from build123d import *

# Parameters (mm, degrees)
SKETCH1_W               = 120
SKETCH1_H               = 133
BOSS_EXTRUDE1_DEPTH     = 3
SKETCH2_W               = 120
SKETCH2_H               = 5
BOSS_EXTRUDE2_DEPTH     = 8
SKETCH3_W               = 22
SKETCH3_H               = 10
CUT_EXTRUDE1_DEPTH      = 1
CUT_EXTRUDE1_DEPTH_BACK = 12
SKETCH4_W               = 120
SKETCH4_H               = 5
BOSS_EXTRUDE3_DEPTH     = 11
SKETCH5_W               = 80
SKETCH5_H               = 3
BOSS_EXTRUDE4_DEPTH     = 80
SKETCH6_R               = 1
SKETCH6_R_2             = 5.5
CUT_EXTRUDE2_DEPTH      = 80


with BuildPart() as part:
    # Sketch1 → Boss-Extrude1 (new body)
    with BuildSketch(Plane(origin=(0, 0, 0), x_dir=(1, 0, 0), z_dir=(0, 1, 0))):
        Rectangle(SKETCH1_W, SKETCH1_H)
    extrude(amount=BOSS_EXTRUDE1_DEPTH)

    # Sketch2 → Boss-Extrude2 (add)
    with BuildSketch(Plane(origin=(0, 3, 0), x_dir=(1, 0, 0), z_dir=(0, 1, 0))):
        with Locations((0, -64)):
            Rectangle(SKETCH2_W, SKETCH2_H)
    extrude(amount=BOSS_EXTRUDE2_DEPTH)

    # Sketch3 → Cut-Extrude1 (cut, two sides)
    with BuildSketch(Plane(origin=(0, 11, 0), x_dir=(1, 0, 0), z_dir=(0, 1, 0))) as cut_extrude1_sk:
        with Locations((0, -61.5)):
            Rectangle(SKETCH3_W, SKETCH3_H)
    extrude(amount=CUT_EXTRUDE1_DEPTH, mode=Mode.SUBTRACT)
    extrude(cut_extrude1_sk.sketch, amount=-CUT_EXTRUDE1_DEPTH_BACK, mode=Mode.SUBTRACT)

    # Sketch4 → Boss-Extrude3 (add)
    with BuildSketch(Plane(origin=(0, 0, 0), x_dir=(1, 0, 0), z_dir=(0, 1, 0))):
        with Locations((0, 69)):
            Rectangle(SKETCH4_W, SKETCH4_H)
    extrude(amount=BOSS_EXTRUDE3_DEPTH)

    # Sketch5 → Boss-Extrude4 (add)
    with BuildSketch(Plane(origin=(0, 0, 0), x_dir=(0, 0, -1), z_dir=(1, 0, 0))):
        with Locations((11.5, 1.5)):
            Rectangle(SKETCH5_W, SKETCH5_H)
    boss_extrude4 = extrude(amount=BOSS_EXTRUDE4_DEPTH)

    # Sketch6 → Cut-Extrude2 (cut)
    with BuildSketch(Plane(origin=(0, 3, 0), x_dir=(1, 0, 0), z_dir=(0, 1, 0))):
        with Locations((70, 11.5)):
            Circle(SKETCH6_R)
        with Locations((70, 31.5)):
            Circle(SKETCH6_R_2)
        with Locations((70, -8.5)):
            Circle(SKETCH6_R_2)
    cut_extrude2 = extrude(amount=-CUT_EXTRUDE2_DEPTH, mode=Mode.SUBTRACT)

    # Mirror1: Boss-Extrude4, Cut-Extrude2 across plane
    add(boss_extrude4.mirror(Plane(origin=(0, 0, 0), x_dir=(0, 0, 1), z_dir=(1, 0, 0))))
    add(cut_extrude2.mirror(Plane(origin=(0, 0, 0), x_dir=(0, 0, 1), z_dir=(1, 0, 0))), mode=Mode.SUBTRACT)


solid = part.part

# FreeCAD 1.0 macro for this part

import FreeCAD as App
import Part
import Sketcher
Q = App.Units.Quantity


def add_polygon(sketch, points):
    """Adds a closed chain of lines whose ends are joined by coincident constraints."""
    first, n = sketch.GeometryCount, len(points)
    for a, b in zip(points, points[1:] + points[:1]):
        sketch.addGeometry(Part.LineSegment(App.Vector(*a, 0), App.Vector(*b, 0)), False)
    for i in range(n):
        sketch.addConstraint(Sketcher.Constraint("Coincident", first + i, 2, first + (i + 1) % n, 1))

doc = App.newDocument("Part")
body = doc.addObject("PartDesign::Body", "Body")

sketch1 = body.newObject("Sketcher::SketchObject", "Sketch")
sketch1.AttachmentSupport = (doc.getObject("XZ_Plane"), [""])
sketch1.MapMode = "FlatFace"
add_polygon(sketch1, [(-60, -66.5), (-60, 66.5), (60, 66.5), (60, -66.5)])
sketch1.addConstraint([
    Sketcher.Constraint("Vertical", 0),
    Sketcher.Constraint("Horizontal", 1),
    Sketcher.Constraint("Vertical", 2),
    Sketcher.Constraint("Horizontal", 3),
    Sketcher.Constraint("Symmetric", 0, 2, 2, 2, -1, 1),
    Sketcher.Constraint("DistanceX", 1, 1, 1, 2, Q("120 mm")),
    Sketcher.Constraint("DistanceY", 0, 1, 0, 2, Q("133 mm")),
])
pad1 = body.newObject("PartDesign::Pad", "Pad")
pad1.Profile = sketch1
pad1.Length = 3
pad1.Reversed = True

sketch2 = body.newObject("Sketcher::SketchObject", "Sketch001")
sketch2.AttachmentSupport = (doc.getObject("XZ_Plane"), [""])
sketch2.MapMode = "FlatFace"
sketch2.AttachmentOffset = App.Placement(App.Vector(0, 0, -3), App.Rotation())
add_polygon(sketch2, [(-60, 61.5), (-60, 66.5), (60, 66.5), (60, 61.5)])
sketch2.addConstraint([
    Sketcher.Constraint("Vertical", 0),
    Sketcher.Constraint("Horizontal", 1),
    Sketcher.Constraint("Vertical", 2),
    Sketcher.Constraint("Horizontal", 3),
    Sketcher.Constraint("DistanceX", 1, 1, 1, 2, Q("120 mm")),
    Sketcher.Constraint("DistanceY", 0, 1, 0, 2, Q("5 mm")),
    Sketcher.Constraint("DistanceX", 0, 2, -1, 1, Q("60 mm")),
    Sketcher.Constraint("DistanceY", -1, 1, 0, 2, Q("66.5 mm")),
])
pad2 = body.newObject("PartDesign::Pad", "Pad001")
pad2.Profile = sketch2
pad2.Length = 8
pad2.Reversed = True

sketch3 = body.newObject("Sketcher::SketchObject", "Sketch002")
sketch3.AttachmentSupport = (doc.getObject("XZ_Plane"), [""])
sketch3.MapMode = "FlatFace"
sketch3.AttachmentOffset = App.Placement(App.Vector(0, 0, -11), App.Rotation())
add_polygon(sketch3, [(-11, 56.5), (-11, 66.5), (11, 66.5), (11, 56.5)])
sketch3.addConstraint([
    Sketcher.Constraint("Vertical", 0),
    Sketcher.Constraint("Horizontal", 1),
    Sketcher.Constraint("Vertical", 2),
    Sketcher.Constraint("Horizontal", 3),
    Sketcher.Constraint("DistanceX", 1, 1, 1, 2, Q("22 mm")),
    Sketcher.Constraint("DistanceY", 0, 1, 0, 2, Q("10 mm")),
    Sketcher.Constraint("DistanceX", 0, 2, -1, 1, Q("11 mm")),
    Sketcher.Constraint("DistanceY", -1, 1, 0, 2, Q("66.5 mm")),
])
pocket1 = body.newObject("PartDesign::Pocket", "Pocket")
pocket1.Profile = sketch3
pocket1.Type = "ThroughAll"
pocket1.Midplane = True

sketch4 = body.newObject("Sketcher::SketchObject", "Sketch003")
sketch4.AttachmentSupport = (doc.getObject("XZ_Plane"), [""])
sketch4.MapMode = "FlatFace"
add_polygon(sketch4, [(-60, -71.5), (-60, -66.5), (60, -66.5), (60, -71.5)])
sketch4.addConstraint([
    Sketcher.Constraint("Vertical", 0),
    Sketcher.Constraint("Horizontal", 1),
    Sketcher.Constraint("Vertical", 2),
    Sketcher.Constraint("Horizontal", 3),
    Sketcher.Constraint("DistanceX", 1, 1, 1, 2, Q("120 mm")),
    Sketcher.Constraint("DistanceY", 0, 1, 0, 2, Q("5 mm")),
    Sketcher.Constraint("DistanceX", 0, 2, -1, 1, Q("60 mm")),
    Sketcher.Constraint("DistanceY", 0, 2, -1, 1, Q("66.5 mm")),
])
pad3 = body.newObject("PartDesign::Pad", "Pad002")
pad3.Profile = sketch4
pad3.Length = 11
pad3.Reversed = True

sketch5 = body.newObject("Sketcher::SketchObject", "Sketch004")
sketch5.AttachmentSupport = (doc.getObject("YZ_Plane"), [""])
sketch5.MapMode = "FlatFace"
add_polygon(sketch5, [(3, 28.5), (0, 28.5), (0, -51.5), (3, -51.5)])
sketch5.addConstraint([
    Sketcher.Constraint("Horizontal", 0),
    Sketcher.Constraint("Vertical", 1),
    Sketcher.Constraint("Horizontal", 2),
    Sketcher.Constraint("Vertical", 3),
    Sketcher.Constraint("PointOnObject", 0, 2, -2),
    Sketcher.Constraint("DistanceX", 0, 2, 0, 1, Q("3 mm")),
    Sketcher.Constraint("DistanceY", 1, 2, 1, 1, Q("80 mm")),
    Sketcher.Constraint("DistanceY", -1, 1, 0, 2, Q("28.5 mm")),
])
pad4 = body.newObject("PartDesign::Pad", "Pad003")
pad4.Profile = sketch5
pad4.Length = 80

sketch6 = body.newObject("Sketcher::SketchObject", "Sketch005")
sketch6.AttachmentSupport = (doc.getObject("XZ_Plane"), [""])
sketch6.MapMode = "FlatFace"
sketch6.AttachmentOffset = App.Placement(App.Vector(0, 0, -3), App.Rotation())
sketch6.addGeometry([
    Part.Circle(App.Vector(70, -11.5, 0), App.Vector(0, 0, 1), 1),
    Part.Circle(App.Vector(70, -31.5, 0), App.Vector(0, 0, 1), 5.5),
    Part.Circle(App.Vector(70, 8.5, 0), App.Vector(0, 0, 1), 5.5),
], False)
sketch6.addConstraint([
    Sketcher.Constraint("Equal", 1, 2),
    Sketcher.Constraint("Vertical", 0, 3, 1, 3),
    Sketcher.Constraint("Vertical", 1, 3, 2, 3),
    Sketcher.Constraint("Diameter", 0, Q("2 mm")),
    Sketcher.Constraint("Diameter", 1, Q("11 mm")),
    Sketcher.Constraint("DistanceX", -1, 1, 0, 3, Q("70 mm")),
    Sketcher.Constraint("DistanceY", 1, 3, 0, 3, Q("20 mm")),
    Sketcher.Constraint("DistanceY", 0, 3, 2, 3, Q("20 mm")),
    Sketcher.Constraint("DistanceY", 0, 3, -1, 1, Q("11.5 mm")),
])
pocket2 = body.newObject("PartDesign::Pocket", "Pocket001")
pocket2.Profile = sketch6
pocket2.Length = 80
pocket2.Reversed = True
doc.recompute()

mirrored = body.newObject("PartDesign::Mirrored", "Mirrored")
mirrored.Originals = [pad4, pocket2]
mirrored.MirrorPlane = (doc.getObject("YZ_Plane"), [""])
body.Tip = mirrored

doc.recompute()
